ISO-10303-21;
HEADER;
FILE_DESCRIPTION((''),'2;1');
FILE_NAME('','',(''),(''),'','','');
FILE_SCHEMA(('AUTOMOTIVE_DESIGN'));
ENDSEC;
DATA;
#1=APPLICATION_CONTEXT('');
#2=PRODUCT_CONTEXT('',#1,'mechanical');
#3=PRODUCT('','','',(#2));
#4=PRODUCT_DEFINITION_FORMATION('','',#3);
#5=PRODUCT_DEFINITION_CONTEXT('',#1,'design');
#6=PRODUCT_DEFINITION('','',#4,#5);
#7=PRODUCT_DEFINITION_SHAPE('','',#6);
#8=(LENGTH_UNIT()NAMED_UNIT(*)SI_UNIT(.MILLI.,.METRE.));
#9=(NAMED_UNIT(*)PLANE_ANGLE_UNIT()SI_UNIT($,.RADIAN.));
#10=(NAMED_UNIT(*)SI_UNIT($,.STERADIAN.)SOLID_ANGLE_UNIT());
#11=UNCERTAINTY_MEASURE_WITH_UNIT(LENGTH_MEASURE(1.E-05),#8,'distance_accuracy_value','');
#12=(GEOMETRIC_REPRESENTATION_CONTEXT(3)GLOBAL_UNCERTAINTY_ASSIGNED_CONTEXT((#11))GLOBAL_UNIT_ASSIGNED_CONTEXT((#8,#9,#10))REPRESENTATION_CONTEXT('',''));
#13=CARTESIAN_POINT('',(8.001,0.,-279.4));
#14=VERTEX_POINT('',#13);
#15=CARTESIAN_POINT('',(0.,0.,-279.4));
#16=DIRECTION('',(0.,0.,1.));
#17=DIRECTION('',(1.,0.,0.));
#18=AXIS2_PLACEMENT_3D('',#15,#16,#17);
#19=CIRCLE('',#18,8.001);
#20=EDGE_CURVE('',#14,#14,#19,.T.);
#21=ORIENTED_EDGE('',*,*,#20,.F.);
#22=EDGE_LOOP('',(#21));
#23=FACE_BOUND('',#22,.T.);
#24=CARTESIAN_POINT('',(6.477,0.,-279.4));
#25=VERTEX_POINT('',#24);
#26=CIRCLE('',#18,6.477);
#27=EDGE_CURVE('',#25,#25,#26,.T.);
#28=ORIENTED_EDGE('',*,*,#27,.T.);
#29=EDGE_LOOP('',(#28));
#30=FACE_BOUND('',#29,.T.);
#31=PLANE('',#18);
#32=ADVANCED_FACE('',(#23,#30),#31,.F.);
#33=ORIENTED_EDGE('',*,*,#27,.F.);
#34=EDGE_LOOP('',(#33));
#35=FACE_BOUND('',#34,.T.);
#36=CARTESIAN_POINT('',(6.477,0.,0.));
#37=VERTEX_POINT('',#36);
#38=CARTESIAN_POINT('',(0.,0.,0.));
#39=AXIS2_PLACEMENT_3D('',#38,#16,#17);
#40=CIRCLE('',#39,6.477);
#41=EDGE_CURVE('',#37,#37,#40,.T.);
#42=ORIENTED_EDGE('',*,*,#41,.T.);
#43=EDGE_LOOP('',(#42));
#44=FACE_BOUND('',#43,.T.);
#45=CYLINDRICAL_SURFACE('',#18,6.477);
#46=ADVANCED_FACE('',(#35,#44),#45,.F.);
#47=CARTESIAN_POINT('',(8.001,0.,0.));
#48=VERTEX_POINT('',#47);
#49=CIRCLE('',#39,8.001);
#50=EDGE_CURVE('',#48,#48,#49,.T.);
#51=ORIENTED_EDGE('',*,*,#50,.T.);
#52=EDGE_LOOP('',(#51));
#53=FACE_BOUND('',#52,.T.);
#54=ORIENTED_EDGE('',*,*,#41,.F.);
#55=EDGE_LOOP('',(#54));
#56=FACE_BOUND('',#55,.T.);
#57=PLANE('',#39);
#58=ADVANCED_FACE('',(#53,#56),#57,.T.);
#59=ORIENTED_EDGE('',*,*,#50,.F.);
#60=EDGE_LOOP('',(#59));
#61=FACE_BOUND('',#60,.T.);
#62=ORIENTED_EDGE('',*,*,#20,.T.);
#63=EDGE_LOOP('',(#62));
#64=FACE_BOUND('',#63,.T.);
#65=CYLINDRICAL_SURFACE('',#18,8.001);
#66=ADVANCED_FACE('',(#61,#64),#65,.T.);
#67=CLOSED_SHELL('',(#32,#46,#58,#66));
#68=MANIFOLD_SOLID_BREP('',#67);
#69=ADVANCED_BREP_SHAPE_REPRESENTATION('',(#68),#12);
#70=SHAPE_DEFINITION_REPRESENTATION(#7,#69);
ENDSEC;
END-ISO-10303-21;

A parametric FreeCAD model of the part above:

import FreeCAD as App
import Part
import Sketcher

V = App.Vector
Q = App.Units.Quantity

doc = App.newDocument("Part")
body = doc.addObject("PartDesign::Body", "Body")

# Sketch on XY plane
sketch1 = doc.addObject("Sketcher::SketchObject", "Sketch")
body.addObject(sketch1)
sketch1.AttachmentSupport = (doc.XY_Plane, [""])
sketch1.MapMode = "FlatFace"
sketch1.addGeometry(Part.Circle(V(0, 0, 0), V(0, 0, 1), 8), False)
sketch1.addGeometry(Part.Circle(V(0, 0, 0), V(0, 0, 1), 6), False)
sketch1.addConstraint(Sketcher.Constraint("Coincident", 0, 3, -1, 1))
sketch1.addConstraint(Sketcher.Constraint("Coincident", 1, 3, -1, 1))
sketch1.addConstraint(Sketcher.Constraint("Diameter", 0, Q("0.63 in")))
sketch1.addConstraint(Sketcher.Constraint("Diameter", 1, Q("0.51 in")))
pad1 = doc.addObject("PartDesign::Pad", "Pad")
body.addObject(pad1)
pad1.Profile = sketch1
pad1.Length = Q("11 in")
pad1.Reversed = True

doc.recompute()
